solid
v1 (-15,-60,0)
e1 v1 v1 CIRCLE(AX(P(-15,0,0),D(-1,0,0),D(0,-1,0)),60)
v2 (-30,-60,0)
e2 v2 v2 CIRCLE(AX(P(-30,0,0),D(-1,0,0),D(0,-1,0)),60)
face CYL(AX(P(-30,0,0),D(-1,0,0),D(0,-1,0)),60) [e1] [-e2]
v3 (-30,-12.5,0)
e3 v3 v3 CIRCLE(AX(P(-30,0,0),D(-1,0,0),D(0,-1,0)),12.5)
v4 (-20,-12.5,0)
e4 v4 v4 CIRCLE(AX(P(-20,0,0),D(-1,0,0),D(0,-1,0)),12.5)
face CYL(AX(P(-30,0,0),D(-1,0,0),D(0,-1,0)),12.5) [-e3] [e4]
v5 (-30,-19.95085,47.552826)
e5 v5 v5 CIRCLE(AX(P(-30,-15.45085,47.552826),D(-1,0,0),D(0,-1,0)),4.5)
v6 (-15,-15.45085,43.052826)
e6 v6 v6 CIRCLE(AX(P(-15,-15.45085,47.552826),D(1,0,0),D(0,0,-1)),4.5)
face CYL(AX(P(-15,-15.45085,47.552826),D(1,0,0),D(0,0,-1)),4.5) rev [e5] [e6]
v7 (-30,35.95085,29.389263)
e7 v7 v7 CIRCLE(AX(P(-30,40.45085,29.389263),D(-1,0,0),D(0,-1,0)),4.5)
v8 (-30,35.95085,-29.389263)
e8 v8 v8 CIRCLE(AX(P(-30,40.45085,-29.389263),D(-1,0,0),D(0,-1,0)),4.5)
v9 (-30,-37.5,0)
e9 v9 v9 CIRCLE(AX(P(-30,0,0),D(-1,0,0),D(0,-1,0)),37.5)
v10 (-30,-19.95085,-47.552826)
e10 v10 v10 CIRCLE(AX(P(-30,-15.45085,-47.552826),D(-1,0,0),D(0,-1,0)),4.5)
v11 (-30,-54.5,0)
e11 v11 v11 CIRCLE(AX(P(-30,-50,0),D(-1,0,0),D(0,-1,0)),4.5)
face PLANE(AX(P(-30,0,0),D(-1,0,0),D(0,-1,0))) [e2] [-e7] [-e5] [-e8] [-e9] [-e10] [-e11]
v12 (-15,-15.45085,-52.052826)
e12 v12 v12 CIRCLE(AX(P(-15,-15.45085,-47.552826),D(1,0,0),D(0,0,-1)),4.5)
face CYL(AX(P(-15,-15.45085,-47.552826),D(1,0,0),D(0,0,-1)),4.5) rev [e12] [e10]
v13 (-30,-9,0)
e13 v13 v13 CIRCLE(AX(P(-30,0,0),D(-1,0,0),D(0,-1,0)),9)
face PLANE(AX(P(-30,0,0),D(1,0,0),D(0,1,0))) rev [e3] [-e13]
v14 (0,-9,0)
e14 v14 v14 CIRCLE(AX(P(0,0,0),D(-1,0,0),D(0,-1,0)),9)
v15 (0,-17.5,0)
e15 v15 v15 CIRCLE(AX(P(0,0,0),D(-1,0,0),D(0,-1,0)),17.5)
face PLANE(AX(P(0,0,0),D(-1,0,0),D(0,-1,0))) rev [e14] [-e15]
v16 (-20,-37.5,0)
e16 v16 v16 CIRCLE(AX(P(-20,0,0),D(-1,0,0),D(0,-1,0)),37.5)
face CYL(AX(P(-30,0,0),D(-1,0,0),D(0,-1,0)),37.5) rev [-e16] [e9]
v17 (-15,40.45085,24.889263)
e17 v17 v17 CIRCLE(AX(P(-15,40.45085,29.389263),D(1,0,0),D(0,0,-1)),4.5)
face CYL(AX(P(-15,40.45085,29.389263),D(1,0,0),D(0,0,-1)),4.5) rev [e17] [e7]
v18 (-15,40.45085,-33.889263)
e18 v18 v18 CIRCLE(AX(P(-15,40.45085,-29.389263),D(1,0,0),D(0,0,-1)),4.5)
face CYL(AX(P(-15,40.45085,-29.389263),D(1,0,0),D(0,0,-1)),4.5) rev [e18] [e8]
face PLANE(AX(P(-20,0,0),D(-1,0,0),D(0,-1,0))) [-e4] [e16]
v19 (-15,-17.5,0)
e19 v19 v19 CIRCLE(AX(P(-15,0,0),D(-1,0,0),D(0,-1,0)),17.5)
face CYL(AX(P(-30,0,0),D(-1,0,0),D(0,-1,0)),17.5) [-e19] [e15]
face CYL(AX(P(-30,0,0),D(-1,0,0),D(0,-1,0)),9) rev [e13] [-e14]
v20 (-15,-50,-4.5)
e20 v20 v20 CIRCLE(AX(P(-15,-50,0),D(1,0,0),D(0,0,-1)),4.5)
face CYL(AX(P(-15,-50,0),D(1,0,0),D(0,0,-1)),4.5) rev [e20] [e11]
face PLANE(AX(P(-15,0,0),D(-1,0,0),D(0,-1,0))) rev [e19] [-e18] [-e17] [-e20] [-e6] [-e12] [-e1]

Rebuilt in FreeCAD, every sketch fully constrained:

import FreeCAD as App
import Part
import Sketcher

V = App.Vector

doc = App.newDocument("Part")
body = doc.addObject("PartDesign::Body", "Body")

# Sketch on XY plane
sketch1 = doc.addObject("Sketcher::SketchObject", "Sketch")
body.addObject(sketch1)
sketch1.AttachmentSupport = (doc.XY_Plane, [""])
sketch1.MapMode = "FlatFace"
sketch1.addGeometry([
    Part.LineSegment(V(-30, 9, 0), V(0, 9, 0)),  # 0
    Part.LineSegment(V(0, 9, 0), V(0, 17.5, 0)),  # 1
    Part.LineSegment(V(0, 17.5, 0), V(-15, 17.5, 0)),  # 2
    Part.LineSegment(V(-15, 17.5, 0), V(-15, 60, 0)),  # 3
    Part.LineSegment(V(-15, 60, 0), V(-30, 60, 0)),  # 4
    Part.LineSegment(V(-30, 60, 0), V(-30, 37.5, 0)),  # 5
    Part.LineSegment(V(-30, 37.5, 0), V(-20, 37.5, 0)),  # 6
    Part.LineSegment(V(-20, 37.5, 0), V(-20, 12.5, 0)),  # 7
    Part.LineSegment(V(-20, 12.5, 0), V(-30, 12.5, 0)),  # 8
    Part.LineSegment(V(-30, 12.5, 0), V(-30, 9, 0)),  # 9
], False)
sketch1.addConstraint([
    Sketcher.Constraint("Coincident", 0, 2, 1, 1),
    Sketcher.Constraint("Coincident", 1, 2, 2, 1),
    Sketcher.Constraint("Coincident", 2, 2, 3, 1),
    Sketcher.Constraint("Coincident", 3, 2, 4, 1),
    Sketcher.Constraint("Coincident", 4, 2, 5, 1),
    Sketcher.Constraint("Coincident", 5, 2, 6, 1),
    Sketcher.Constraint("Coincident", 6, 2, 7, 1),
    Sketcher.Constraint("Coincident", 7, 2, 8, 1),
    Sketcher.Constraint("Coincident", 8, 2, 9, 1),
    Sketcher.Constraint("Coincident", 9, 2, 0, 1),
    Sketcher.Constraint("Horizontal", 0),
    Sketcher.Constraint("Vertical", 1),
    Sketcher.Constraint("Horizontal", 2),
    Sketcher.Constraint("Vertical", 3),
    Sketcher.Constraint("Horizontal", 4),
    Sketcher.Constraint("Vertical", 5),
    Sketcher.Constraint("Horizontal", 6),
    Sketcher.Constraint("Vertical", 7),
    Sketcher.Constraint("Horizontal", 8),
    Sketcher.Constraint("Vertical", 9),
    Sketcher.Constraint("PointOnObject", 0, 2, -2),
    Sketcher.Constraint("Vertical", 5, 2, 8, 2),
    Sketcher.Constraint("Equal", 2, 4),
    Sketcher.Constraint("DistanceX", 0, 1, 0, 2, 30.0),
    Sketcher.Constraint("DistanceX", 6, 1, 6, 2, 10.0),
    Sketcher.Constraint("DistanceY", 7, 2, 7, 1, 25.0),
    Sketcher.Constraint("DistanceY", 1, 1, 1, 2, 8.5),
    Sketcher.Constraint("DistanceY", 3, 1, 3, 2, 42.5),
    Sketcher.Constraint("DistanceY", 5, 2, 5, 1, 22.5),
    Sketcher.Constraint("DistanceY", -1, 1, 0, 2, 9.0),
])
revolution = doc.addObject("PartDesign::Revolution", "Revolution")
body.addObject(revolution)
revolution.Profile = sketch1
revolution.ReferenceAxis = (sketch1, ["H_Axis"])
revolution.Angle = 360

# Sketch on YZ plane
sketch2 = doc.addObject("Sketcher::SketchObject", "Sketch001")
body.addObject(sketch2)
sketch2.AttachmentSupport = (doc.YZ_Plane, [""])
sketch2.MapMode = "FlatFace"
sketch2.AttachmentOffset = App.Placement(V(0, 0, -15), App.Rotation())
sketch2.addGeometry(Part.Circle(V(-50, 0, 0), V(0, 0, 1), 4.5), False)
sketch2.addConstraint([
    Sketcher.Constraint("PointOnObject", 0, 3, -1),
    Sketcher.Constraint("Diameter", 0, 9.0),
    Sketcher.Constraint("DistanceX", 0, 3, -1, 1, 50.0),
])
doc.recompute()
hole = doc.addObject("PartDesign::Hole", "Hole")
body.addObject(hole)
hole.Profile = sketch2
hole.ThreadType = "None"
hole.Diameter = 9
hole.DepthType = "Dimension"
hole.Depth = 15
hole.DrillPoint = "Flat"
doc.recompute()

polarpattern = doc.addObject("PartDesign::PolarPattern", "PolarPattern")
body.addObject(polarpattern)
polarpattern.Originals = [hole]
polarpattern.Axis = (doc.X_Axis, [""])
polarpattern.Angle = 360
polarpattern.Occurrences = 5
body.Tip = polarpattern

doc.recompute()
